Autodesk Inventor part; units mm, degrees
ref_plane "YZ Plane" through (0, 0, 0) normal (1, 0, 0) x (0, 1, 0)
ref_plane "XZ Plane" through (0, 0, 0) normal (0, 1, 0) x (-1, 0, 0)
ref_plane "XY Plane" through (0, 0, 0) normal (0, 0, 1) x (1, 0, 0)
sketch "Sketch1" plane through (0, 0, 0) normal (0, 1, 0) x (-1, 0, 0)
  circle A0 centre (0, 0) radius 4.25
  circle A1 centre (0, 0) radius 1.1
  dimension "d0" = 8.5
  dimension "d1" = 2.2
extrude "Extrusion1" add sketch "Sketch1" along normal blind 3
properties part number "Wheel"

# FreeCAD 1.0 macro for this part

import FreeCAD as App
import Part
import Sketcher
Q = App.Units.Quantity

doc = App.newDocument("Part")
body = doc.addObject("PartDesign::Body", "Body")

# Sketch on XZ plane
sketch1 = body.newObject("Sketcher::SketchObject", "Sketch")
sketch1.AttachmentSupport = (doc.getObject("XZ_Plane"), [""])
sketch1.MapMode = "FlatFace"
sketch1.addGeometry([
    Part.Circle(App.Vector(0, 0, 0), App.Vector(0, 0, 1), 4.25),
    Part.Circle(App.Vector(0, 0, 0), App.Vector(0, 0, 1), 1.1),
], False)
sketch1.addConstraint([
    Sketcher.Constraint("Coincident", 0, 3, -1, 1),
    Sketcher.Constraint("Coincident", 1, 3, -1, 1),
    Sketcher.Constraint("Diameter", 0, Q("8.5 mm")),
    Sketcher.Constraint("Diameter", 1, Q("2.2 mm")),
])
pad1 = body.newObject("PartDesign::Pad", "Pad")
pad1.Profile = sketch1
pad1.Length = 3
pad1.Reversed = True

doc.recompute()
